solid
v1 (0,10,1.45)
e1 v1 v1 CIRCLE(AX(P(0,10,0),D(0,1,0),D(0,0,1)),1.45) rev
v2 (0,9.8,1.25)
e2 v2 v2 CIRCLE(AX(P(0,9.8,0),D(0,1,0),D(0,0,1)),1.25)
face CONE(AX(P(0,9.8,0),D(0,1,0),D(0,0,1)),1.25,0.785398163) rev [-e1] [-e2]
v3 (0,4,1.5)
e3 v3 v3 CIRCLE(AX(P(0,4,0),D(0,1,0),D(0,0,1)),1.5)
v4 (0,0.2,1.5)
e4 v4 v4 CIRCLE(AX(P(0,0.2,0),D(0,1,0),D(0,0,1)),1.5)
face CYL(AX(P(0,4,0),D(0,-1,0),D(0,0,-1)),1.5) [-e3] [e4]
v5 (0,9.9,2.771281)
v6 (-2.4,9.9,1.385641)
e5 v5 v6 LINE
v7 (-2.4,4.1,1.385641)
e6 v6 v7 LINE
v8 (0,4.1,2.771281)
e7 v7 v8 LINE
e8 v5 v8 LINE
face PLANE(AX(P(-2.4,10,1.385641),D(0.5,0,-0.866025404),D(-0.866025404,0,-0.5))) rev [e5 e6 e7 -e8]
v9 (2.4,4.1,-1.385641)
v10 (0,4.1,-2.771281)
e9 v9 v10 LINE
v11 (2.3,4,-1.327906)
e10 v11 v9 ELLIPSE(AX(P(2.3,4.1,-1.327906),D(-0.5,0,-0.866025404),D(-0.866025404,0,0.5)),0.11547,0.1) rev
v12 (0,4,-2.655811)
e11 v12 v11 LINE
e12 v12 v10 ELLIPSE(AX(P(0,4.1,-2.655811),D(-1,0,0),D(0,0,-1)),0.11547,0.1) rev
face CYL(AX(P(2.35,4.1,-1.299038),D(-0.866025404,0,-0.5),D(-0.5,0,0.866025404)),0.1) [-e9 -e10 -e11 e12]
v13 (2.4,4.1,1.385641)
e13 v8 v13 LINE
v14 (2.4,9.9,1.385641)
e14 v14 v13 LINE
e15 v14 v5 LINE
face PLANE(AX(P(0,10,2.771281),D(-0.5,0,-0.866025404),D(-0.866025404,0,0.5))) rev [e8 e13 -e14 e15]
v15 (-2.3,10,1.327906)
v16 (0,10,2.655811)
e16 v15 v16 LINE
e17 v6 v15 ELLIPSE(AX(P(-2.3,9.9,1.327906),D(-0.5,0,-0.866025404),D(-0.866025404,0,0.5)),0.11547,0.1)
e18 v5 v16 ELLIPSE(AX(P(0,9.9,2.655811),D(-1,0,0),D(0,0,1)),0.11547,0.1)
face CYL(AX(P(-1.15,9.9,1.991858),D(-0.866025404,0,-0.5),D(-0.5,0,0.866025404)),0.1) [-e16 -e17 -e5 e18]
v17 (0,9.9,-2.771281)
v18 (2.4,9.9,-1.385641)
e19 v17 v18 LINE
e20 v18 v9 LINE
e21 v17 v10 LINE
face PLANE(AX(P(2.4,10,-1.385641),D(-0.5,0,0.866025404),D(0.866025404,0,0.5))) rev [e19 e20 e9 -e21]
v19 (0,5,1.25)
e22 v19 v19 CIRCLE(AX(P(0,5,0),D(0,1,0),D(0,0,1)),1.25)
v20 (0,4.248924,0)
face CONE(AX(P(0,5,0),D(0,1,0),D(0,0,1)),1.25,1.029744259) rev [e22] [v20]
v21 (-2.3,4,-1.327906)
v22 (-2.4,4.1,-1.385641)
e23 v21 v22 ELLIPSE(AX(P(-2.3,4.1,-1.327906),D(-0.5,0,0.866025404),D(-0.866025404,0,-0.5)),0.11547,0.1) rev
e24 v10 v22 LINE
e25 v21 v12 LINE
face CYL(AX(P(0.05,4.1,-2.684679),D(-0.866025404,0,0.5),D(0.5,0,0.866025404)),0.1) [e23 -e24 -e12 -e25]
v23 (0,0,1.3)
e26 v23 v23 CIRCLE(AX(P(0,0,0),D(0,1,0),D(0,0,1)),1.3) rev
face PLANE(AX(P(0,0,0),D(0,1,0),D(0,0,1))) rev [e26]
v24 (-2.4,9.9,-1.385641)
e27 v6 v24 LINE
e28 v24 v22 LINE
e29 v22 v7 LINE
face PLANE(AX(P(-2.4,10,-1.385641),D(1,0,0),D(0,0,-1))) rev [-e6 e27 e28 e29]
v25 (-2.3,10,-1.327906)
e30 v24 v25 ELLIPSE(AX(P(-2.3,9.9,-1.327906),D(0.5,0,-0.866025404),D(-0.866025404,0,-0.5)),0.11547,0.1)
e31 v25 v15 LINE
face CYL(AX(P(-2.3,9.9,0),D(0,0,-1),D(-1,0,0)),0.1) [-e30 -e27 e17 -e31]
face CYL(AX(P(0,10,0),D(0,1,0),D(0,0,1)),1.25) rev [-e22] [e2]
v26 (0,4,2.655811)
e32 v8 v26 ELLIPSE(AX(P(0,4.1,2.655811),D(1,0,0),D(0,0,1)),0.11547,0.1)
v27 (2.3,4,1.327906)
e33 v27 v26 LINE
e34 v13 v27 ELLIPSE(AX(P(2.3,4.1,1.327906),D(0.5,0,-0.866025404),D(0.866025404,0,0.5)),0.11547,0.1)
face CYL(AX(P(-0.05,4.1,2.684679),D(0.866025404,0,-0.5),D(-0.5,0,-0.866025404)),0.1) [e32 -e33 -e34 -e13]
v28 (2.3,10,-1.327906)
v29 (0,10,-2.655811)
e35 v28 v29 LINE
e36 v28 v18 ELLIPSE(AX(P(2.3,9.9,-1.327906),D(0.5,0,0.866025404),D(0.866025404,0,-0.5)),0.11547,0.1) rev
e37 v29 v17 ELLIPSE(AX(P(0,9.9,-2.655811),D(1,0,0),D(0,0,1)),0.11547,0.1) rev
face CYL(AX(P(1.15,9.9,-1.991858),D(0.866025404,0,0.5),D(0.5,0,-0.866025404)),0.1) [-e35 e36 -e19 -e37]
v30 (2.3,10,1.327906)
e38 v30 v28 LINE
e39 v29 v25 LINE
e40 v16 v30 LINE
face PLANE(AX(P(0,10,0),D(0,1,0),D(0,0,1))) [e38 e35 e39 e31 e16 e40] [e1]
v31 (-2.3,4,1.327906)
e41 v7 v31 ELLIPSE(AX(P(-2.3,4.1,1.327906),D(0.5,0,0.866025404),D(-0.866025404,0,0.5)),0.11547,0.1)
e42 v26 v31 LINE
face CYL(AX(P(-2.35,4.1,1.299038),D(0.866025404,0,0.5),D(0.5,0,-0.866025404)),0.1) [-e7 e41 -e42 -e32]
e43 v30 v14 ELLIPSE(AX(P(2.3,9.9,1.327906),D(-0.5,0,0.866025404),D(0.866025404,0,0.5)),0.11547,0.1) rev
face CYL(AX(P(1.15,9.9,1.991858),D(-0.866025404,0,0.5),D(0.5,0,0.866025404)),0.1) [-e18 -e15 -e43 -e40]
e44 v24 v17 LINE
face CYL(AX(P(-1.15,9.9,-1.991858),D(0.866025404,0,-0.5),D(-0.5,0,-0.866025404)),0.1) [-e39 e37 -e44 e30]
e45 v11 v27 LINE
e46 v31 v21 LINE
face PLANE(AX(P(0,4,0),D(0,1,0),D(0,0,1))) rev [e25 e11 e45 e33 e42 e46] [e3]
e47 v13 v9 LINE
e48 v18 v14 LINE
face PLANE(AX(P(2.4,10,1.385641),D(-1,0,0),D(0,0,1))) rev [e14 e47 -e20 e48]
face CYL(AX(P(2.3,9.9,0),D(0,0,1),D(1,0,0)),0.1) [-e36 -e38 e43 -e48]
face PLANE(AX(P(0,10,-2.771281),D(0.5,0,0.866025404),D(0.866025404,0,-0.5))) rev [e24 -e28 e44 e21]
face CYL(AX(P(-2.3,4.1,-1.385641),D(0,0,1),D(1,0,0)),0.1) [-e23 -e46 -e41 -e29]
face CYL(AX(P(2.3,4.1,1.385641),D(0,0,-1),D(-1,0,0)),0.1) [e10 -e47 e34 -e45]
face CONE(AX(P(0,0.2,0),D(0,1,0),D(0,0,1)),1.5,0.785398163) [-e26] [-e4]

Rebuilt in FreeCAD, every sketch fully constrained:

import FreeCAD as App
import Part
import Sketcher
from FreeCAD import Vector
Q = App.Units.Quantity


def edges_at(feature, points):
    """Names of the edges that pass closest to the given points."""
    edges = feature.Shape.Edges
    near = lambda p: min(range(len(edges)), key=lambda i: edges[i].distToShape(Part.Vertex(*p))[0])
    return sorted({f"Edge{near(p) + 1}" for p in points})


def add_polygon(sketch, points):
    """Adds a closed chain of lines whose ends are joined by coincident constraints."""
    first, n = sketch.GeometryCount, len(points)
    for a, b in zip(points, points[1:] + points[:1]):
        sketch.addGeometry(Part.LineSegment(App.Vector(*a, 0), App.Vector(*b, 0)), False)
    for i in range(n):
        sketch.addConstraint(Sketcher.Constraint("Coincident", first + i, 2, first + (i + 1) % n, 1))

doc = App.newDocument("Part")
params = doc.addObject("Spreadsheet::Sheet", "Params")
for row, (alias, value) in enumerate([
    ("sketch1_diameter", "3 mm"),
    ("pad1_length", "4 mm"),
    ("pad2_length", "6 mm"),
    ("fillet_radius", "0.1 mm"),
    ("sketch3_diameter", "2.5 mm"),
    ("hole_diameter", "2.5 mm"),
    ("hole_depth", "5 mm"),
    ("chamfer_size", "0.2 mm"),
], start=1):
    params.set(f"A{row}", alias)
    params.set(f"B{row}", "=" + value)
    params.setAlias(f"B{row}", alias)

body = doc.addObject("PartDesign::Body", "Body")

sketch1 = doc.addObject("Sketcher::SketchObject", "Sketch")
body.addObject(sketch1)
sketch1.AttachmentSupport = (doc.XZ_Plane, [""])
sketch1.MapMode = "FlatFace"
sketch1.addGeometry(Part.Circle(Vector(0, 0, 0), Vector(0, 0, 1), 1.5), False)
sketch1.addConstraint([
    Sketcher.Constraint("Coincident", 0, 3, -1, 1),
    Sketcher.Constraint("Diameter", 0, 3.0),
])
sketch1.setExpression("Constraints[1]", "Params.sketch1_diameter")
pad1 = doc.addObject("PartDesign::Pad", "Pad")
body.addObject(pad1)
pad1.Profile = sketch1
pad1.setExpression("Length", "Params.pad1_length")
pad1.Reversed = True

sketch2 = doc.addObject("Sketcher::SketchObject", "Sketch001")
body.addObject(sketch2)
sketch2.AttachmentSupport = (doc.XZ_Plane, [""])
sketch2.MapMode = "FlatFace"
sketch2.AttachmentOffset = App.Placement(Vector(0, 0, -4), App.Rotation())
add_polygon(sketch2, [(-2.4, -1.385641), (-2.4, 1.385641), (0, 2.771281), (2.4, 1.385641), (2.4, -1.385641), (0, -2.771281)])
sketch2.addConstraint([
    Sketcher.Constraint("Vertical", 0),
    Sketcher.Constraint("Vertical", 3),
    Sketcher.Constraint("Symmetric", 0, 2, 3, 2, -1, 1),
    Sketcher.Constraint("Symmetric", 1, 2, 4, 2, -1, 1),
    Sketcher.Constraint("PointOnObject", 1, 2, -2),
    Sketcher.Constraint("Parallel", 2, 5),
    Sketcher.Constraint("Horizontal", 0, 2, 2, 2),
    Sketcher.Constraint("Angle", 1, Q("30 deg")),
    Sketcher.Constraint("DistanceX", 0, 2, -1, 1, 2.4),
    Sketcher.Constraint("DistanceY", 0, 1, 0, 2, 2.771281),
])
pad2 = doc.addObject("PartDesign::Pad", "Pad001")
body.addObject(pad2)
pad2.Profile = sketch2
pad2.setExpression("Length", "Params.pad2_length")
pad2.Reversed = True
doc.recompute()

fillet = doc.addObject("PartDesign::Fillet", "Fillet")
body.addObject(fillet)
fillet.Base = (pad2, edges_at(pad2, [
    (-1.2, 4, -2.078),
    (-2.4, 4, 0),
    (-1.2, 4, 2.078),
    (1.2, 4, 2.078),
    (2.4, 4, 0),
    (1.2, 4, -2.078),
    (-1.2, 10, -2.078),
    (-2.4, 10, 0),
    (-1.2, 10, 2.078),
    (1.2, 10, 2.078),
    (2.4, 10, 0),
    (1.2, 10, -2.078),
]))
fillet.setExpression("Radius", "Params.fillet_radius")

sketch3 = doc.addObject("Sketcher::SketchObject", "Sketch002")
body.addObject(sketch3)
sketch3.AttachmentSupport = (doc.XZ_Plane, [""])
sketch3.MapMode = "FlatFace"
sketch3.AttachmentOffset = App.Placement(Vector(0, 0, -10), App.Rotation())
sketch3.addGeometry(Part.Circle(Vector(0, 0, 0), Vector(0, 0, 1), 1.25), False)
sketch3.addConstraint([
    Sketcher.Constraint("Coincident", 0, 3, -1, 1),
    Sketcher.Constraint("Diameter", 0, 2.5),
])
sketch3.setExpression("Constraints[1]", "Params.sketch3_diameter")
doc.recompute()
hole = doc.addObject("PartDesign::Hole", "Hole")
body.addObject(hole)
hole.Profile = sketch3
hole.ThreadType = "None"
hole.setExpression("Diameter", "Params.hole_diameter")
hole.DepthType = "Dimension"
hole.setExpression("Depth", "Params.hole_depth")
hole.DrillPoint = "Angled"
hole.DrillPointAngle = 118
hole.Reversed = True
doc.recompute()

chamfer = doc.addObject("PartDesign::Chamfer", "Chamfer")
body.addObject(chamfer)
chamfer.Base = (hole, edges_at(hole, [(-1.5, 0, 0), (0, 10, 1.25)]))
chamfer.setExpression("Size", "Params.chamfer_size")

doc.recompute()
